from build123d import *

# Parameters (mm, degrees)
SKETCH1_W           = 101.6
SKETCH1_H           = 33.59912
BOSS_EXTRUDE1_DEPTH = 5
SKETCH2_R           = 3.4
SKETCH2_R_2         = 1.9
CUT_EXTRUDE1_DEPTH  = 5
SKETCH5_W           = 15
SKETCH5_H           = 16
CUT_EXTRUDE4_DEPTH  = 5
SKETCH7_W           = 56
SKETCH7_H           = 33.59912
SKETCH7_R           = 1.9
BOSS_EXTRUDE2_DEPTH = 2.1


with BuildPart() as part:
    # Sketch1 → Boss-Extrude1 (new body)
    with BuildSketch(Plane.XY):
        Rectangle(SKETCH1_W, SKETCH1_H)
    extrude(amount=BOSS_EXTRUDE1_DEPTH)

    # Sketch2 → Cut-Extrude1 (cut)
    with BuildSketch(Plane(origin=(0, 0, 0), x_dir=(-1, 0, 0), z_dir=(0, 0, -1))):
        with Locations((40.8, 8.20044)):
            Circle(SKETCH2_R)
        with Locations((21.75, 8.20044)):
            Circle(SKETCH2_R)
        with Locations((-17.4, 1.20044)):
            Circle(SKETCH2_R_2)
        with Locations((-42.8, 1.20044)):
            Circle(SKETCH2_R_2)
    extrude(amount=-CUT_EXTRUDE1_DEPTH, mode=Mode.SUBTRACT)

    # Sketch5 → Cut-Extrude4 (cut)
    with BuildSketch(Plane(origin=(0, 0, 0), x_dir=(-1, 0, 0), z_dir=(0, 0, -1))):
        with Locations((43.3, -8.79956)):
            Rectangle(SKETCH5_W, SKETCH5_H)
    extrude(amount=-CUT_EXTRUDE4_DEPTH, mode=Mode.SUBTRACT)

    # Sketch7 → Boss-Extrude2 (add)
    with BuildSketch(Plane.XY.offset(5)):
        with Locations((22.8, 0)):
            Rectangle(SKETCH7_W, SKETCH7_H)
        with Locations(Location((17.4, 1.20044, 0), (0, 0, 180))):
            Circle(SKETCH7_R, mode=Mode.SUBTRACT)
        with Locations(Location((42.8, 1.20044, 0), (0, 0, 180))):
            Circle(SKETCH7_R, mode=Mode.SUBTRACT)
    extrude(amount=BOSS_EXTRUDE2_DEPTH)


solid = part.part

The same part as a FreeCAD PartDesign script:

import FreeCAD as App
import Part
import Sketcher

doc = App.newDocument("Part")
body = doc.addObject("PartDesign::Body", "Body")

sketch1 = body.newObject("Sketcher::SketchObject", "Sketch")
sketch1.AttachmentSupport = (doc.getObject("XY_Plane"), [""])
sketch1.MapMode = "FlatFace"
sketch1.addGeometry(Part.LineSegment(App.Vector(-50.8, 16.79956, 0), App.Vector(-50.8, -16.79956, 0)), False)
sketch1.addGeometry(Part.LineSegment(App.Vector(-50.8, -16.79956, 0), App.Vector(50.8, -16.79956, 0)), False)
sketch1.addGeometry(Part.LineSegment(App.Vector(50.8, -16.79956, 0), App.Vector(50.8, 16.79956, 0)), False)
sketch1.addGeometry(Part.LineSegment(App.Vector(50.8, 16.79956, 0), App.Vector(-50.8, 16.79956, 0)), False)
sketch1.addConstraint(Sketcher.Constraint("Coincident", 0, 2, 1, 1))
sketch1.addConstraint(Sketcher.Constraint("Coincident", 1, 2, 2, 1))
sketch1.addConstraint(Sketcher.Constraint("Coincident", 2, 2, 3, 1))
sketch1.addConstraint(Sketcher.Constraint("Coincident", 3, 2, 0, 1))
sketch1.addConstraint(Sketcher.Constraint("Vertical", 0))
sketch1.addConstraint(Sketcher.Constraint("Horizontal", 1))
sketch1.addConstraint(Sketcher.Constraint("Vertical", 2))
sketch1.addConstraint(Sketcher.Constraint("Horizontal", 3))
sketch1.addConstraint(Sketcher.Constraint("Symmetric", 0, 2, 2, 2, -1, 1))
sketch1.addConstraint(Sketcher.Constraint("DistanceX", 1, 1, 1, 2, 101.6))
sketch1.addConstraint(Sketcher.Constraint("DistanceY", 0, 2, 0, 1, 33.59912))
pad1 = body.newObject("PartDesign::Pad", "Pad")
pad1.Profile = sketch1
pad1.Length = 5

sketch2 = body.newObject("Sketcher::SketchObject", "Sketch001")
sketch2.AttachmentSupport = (doc.getObject("XY_Plane"), [""])
sketch2.MapMode = "FlatFace"
sketch2.addGeometry(Part.Circle(App.Vector(-40.8, 8.20044, 0), App.Vector(0, 0, 1), 3.4), False)
sketch2.addGeometry(Part.Circle(App.Vector(-21.75, 8.20044, 0), App.Vector(0, 0, 1), 3.4), False)
sketch2.addGeometry(Part.Circle(App.Vector(17.4, 1.20044, 0), App.Vector(0, 0, 1), 1.9), False)
sketch2.addGeometry(Part.Circle(App.Vector(42.8, 1.20044, 0), App.Vector(0, 0, 1), 1.9), False)
sketch2.addConstraint(Sketcher.Constraint("Equal", 0, 1))
sketch2.addConstraint(Sketcher.Constraint("Equal", 2, 3))
sketch2.addConstraint(Sketcher.Constraint("Horizontal", 0, 3, 1, 3))
sketch2.addConstraint(Sketcher.Constraint("Horizontal", 2, 3, 3, 3))
sketch2.addConstraint(Sketcher.Constraint("Diameter", 0, 6.8))
sketch2.addConstraint(Sketcher.Constraint("Diameter", 2, 3.8))
sketch2.addConstraint(Sketcher.Constraint("DistanceY", 2, 3, 1, 3, 7.0))
sketch2.addConstraint(Sketcher.Constraint("DistanceX", 0, 3, -1, 1, 40.8))
sketch2.addConstraint(Sketcher.Constraint("DistanceX", -1, 1, 2, 3, 17.4))
sketch2.addConstraint(Sketcher.Constraint("DistanceX", -1, 1, 3, 3, 42.8))
sketch2.addConstraint(Sketcher.Constraint("DistanceX", 1, 3, -1, 1, 21.75))
sketch2.addConstraint(Sketcher.Constraint("DistanceY", -1, 1, 0, 3, 8.20044))
pocket1 = body.newObject("PartDesign::Pocket", "Pocket")
pocket1.Profile = sketch2
pocket1.Length = 5
pocket1.Reversed = True

sketch3 = body.newObject("Sketcher::SketchObject", "Sketch002")
sketch3.AttachmentSupport = (doc.getObject("XY_Plane"), [""])
sketch3.MapMode = "FlatFace"
sketch3.addGeometry(Part.LineSegment(App.Vector(-35.8, -0.79956, 0), App.Vector(-35.8, -16.79956, 0)), False)
sketch3.addGeometry(Part.LineSegment(App.Vector(-35.8, -16.79956, 0), App.Vector(-50.8, -16.79956, 0)), False)
sketch3.addGeometry(Part.LineSegment(App.Vector(-50.8, -16.79956, 0), App.Vector(-50.8, -0.79956, 0)), False)
sketch3.addGeometry(Part.LineSegment(App.Vector(-50.8, -0.79956, 0), App.Vector(-35.8, -0.79956, 0)), False)
sketch3.addConstraint(Sketcher.Constraint("Coincident", 0, 2, 1, 1))
sketch3.addConstraint(Sketcher.Constraint("Coincident", 1, 2, 2, 1))
sketch3.addConstraint(Sketcher.Constraint("Coincident", 2, 2, 3, 1))
sketch3.addConstraint(Sketcher.Constraint("Coincident", 3, 2, 0, 1))
sketch3.addConstraint(Sketcher.Constraint("Vertical", 0))
sketch3.addConstraint(Sketcher.Constraint("Horizontal", 1))
sketch3.addConstraint(Sketcher.Constraint("Vertical", 2))
sketch3.addConstraint(Sketcher.Constraint("Horizontal", 3))
sketch3.addConstraint(Sketcher.Constraint("DistanceX", 1, 2, 1, 1, 15.0))
sketch3.addConstraint(Sketcher.Constraint("DistanceY", 0, 2, 0, 1, 16.0))
sketch3.addConstraint(Sketcher.Constraint("DistanceX", 0, 2, -1, 1, 35.8))
sketch3.addConstraint(Sketcher.Constraint("DistanceY", 0, 2, -1, 1, 16.79956))
pocket2 = body.newObject("PartDesign::Pocket", "Pocket001")
pocket2.Profile = sketch3
pocket2.Length = 5
pocket2.Reversed = True

sketch4 = body.newObject("Sketcher::SketchObject", "Sketch003")
sketch4.AttachmentSupport = (doc.getObject("XY_Plane"), [""])
sketch4.MapMode = "FlatFace"
sketch4.AttachmentOffset = App.Placement(App.Vector(0, 0, 5), App.Rotation())
sketch4.addGeometry(Part.LineSegment(App.Vector(-5.2, 16.79956, 0), App.Vector(-5.2, -16.79956, 0)), False)
sketch4.addGeometry(Part.LineSegment(App.Vector(-5.2, -16.79956, 0), App.Vector(50.8, -16.79956, 0)), False)
sketch4.addGeometry(Part.LineSegment(App.Vector(50.8, -16.79956, 0), App.Vector(50.8, 16.79956, 0)), False)
sketch4.addGeometry(Part.LineSegment(App.Vector(50.8, 16.79956, 0), App.Vector(-5.2, 16.79956, 0)), False)
sketch4.addGeometry(Part.Circle(App.Vector(17.4, 1.20044, 0), App.Vector(0, 0, 1), 1.9), False)
sketch4.addGeometry(Part.Circle(App.Vector(42.8, 1.20044, 0), App.Vector(0, 0, 1), 1.9), False)
sketch4.addConstraint(Sketcher.Constraint("Coincident", 0, 2, 1, 1))
sketch4.addConstraint(Sketcher.Constraint("Coincident", 1, 2, 2, 1))
sketch4.addConstraint(Sketcher.Constraint("Coincident", 2, 2, 3, 1))
sketch4.addConstraint(Sketcher.Constraint("Coincident", 3, 2, 0, 1))
sketch4.addConstraint(Sketcher.Constraint("Vertical", 0))
sketch4.addConstraint(Sketcher.Constraint("Horizontal", 1))
sketch4.addConstraint(Sketcher.Constraint("Vertical", 2))
sketch4.addConstraint(Sketcher.Constraint("Horizontal", 3))
sketch4.addConstraint(Sketcher.Constraint("Equal", 4, 5))
sketch4.addConstraint(Sketcher.Constraint("Horizontal", 4, 3, 5, 3))
sketch4.addConstraint(Sketcher.Constraint("Diameter", 4, 3.8))
sketch4.addConstraint(Sketcher.Constraint("DistanceX", 1, 1, 1, 2, 56.0))
sketch4.addConstraint(Sketcher.Constraint("DistanceY", 0, 2, 4, 3, 18.0))
sketch4.addConstraint(Sketcher.Constraint("DistanceX", 0, 2, 5, 3, 48.0))
sketch4.addConstraint(Sketcher.Constraint("DistanceX", -1, 1, 4, 3, 17.4))
sketch4.addConstraint(Sketcher.Constraint("DistanceX", -1, 1, 5, 3, 42.8))
sketch4.addConstraint(Sketcher.Constraint("DistanceY", 0, 2, 0, 1, 33.59912))
sketch4.addConstraint(Sketcher.Constraint("DistanceY", -1, 1, 4, 3, 1.20044))
pad2 = body.newObject("PartDesign::Pad", "Pad001")
pad2.Profile = sketch4
pad2.Length = 2.1

doc.recompute()
